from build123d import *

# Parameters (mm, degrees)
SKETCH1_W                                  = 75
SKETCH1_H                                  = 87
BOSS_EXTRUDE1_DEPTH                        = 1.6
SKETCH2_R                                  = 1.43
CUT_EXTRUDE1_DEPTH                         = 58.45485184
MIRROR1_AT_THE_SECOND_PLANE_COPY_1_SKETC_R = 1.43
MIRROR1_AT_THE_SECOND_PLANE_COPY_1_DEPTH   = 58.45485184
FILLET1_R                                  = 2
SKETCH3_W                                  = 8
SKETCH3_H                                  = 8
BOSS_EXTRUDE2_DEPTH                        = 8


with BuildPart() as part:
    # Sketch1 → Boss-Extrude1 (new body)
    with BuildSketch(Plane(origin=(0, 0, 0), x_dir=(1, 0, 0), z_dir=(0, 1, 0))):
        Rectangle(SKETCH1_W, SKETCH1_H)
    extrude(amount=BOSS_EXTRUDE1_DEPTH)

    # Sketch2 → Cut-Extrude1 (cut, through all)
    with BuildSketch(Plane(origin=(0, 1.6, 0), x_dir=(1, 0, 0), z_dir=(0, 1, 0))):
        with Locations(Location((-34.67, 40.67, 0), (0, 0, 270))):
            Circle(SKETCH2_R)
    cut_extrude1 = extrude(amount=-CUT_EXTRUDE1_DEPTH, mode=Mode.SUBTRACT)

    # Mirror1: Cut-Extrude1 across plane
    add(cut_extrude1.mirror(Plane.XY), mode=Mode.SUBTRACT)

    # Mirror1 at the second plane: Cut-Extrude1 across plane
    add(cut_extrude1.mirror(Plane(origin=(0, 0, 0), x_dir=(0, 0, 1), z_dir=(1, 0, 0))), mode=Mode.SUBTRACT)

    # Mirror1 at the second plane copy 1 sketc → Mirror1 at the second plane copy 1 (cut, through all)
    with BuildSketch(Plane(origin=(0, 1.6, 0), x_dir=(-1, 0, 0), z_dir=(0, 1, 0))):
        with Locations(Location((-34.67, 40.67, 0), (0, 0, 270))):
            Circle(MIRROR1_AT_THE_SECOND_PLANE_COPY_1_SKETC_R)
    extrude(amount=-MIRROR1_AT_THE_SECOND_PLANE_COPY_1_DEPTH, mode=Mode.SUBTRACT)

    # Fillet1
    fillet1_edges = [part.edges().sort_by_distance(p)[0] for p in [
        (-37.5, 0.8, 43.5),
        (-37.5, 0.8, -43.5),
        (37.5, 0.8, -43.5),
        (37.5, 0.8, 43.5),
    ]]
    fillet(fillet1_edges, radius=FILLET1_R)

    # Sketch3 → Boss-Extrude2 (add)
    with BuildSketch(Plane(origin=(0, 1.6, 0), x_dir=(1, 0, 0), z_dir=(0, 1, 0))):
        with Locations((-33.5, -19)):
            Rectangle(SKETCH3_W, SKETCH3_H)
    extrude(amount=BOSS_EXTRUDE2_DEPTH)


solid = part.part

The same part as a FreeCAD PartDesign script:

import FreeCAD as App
import Part
import Sketcher

V = App.Vector


def edges_at(feature, points):
    """Names of the edges that pass closest to the given points."""
    edges = feature.Shape.Edges
    near = lambda p: min(range(len(edges)), key=lambda i: edges[i].distToShape(Part.Vertex(*p))[0])
    return sorted({f"Edge{near(p) + 1}" for p in points})

doc = App.newDocument("Part")
params = doc.addObject("Spreadsheet::Sheet", "Params")
for row, (alias, value) in enumerate([
    ("sketch1_width", "75 mm"),
    ("sketch1_height", "87 mm"),
    ("pad1_length", "1.6 mm"),
    ("sketch2_diameter", "2.86 mm"),
    ("sketch3_diameter", "2.86 mm"),
    ("fillet_radius", "2 mm"),
    ("sketch4_width", "8 mm"),
    ("pad2_length", "8 mm"),
], start=1):
    params.set(f"A{row}", alias)
    params.set(f"B{row}", "=" + value)
    params.setAlias(f"B{row}", alias)

body = doc.addObject("PartDesign::Body", "Body")

# Sketch on XZ plane
sketch1 = doc.addObject("Sketcher::SketchObject", "Sketch")
body.addObject(sketch1)
sketch1.AttachmentSupport = (doc.XZ_Plane, [""])
sketch1.MapMode = "FlatFace"
sketch1.addGeometry([
    Part.LineSegment(V(-37.5, -43.5, 0), V(-37.5, 43.5, 0)),
    Part.LineSegment(V(-37.5, 43.5, 0), V(37.5, 43.5, 0)),
    Part.LineSegment(V(37.5, 43.5, 0), V(37.5, -43.5, 0)),
    Part.LineSegment(V(37.5, -43.5, 0), V(-37.5, -43.5, 0)),
], False)
sketch1.addConstraint([
    Sketcher.Constraint("Coincident", 0, 2, 1, 1),
    Sketcher.Constraint("Coincident", 1, 2, 2, 1),
    Sketcher.Constraint("Coincident", 2, 2, 3, 1),
    Sketcher.Constraint("Coincident", 3, 2, 0, 1),
    Sketcher.Constraint("Vertical", 0),
    Sketcher.Constraint("Horizontal", 1),
    Sketcher.Constraint("Vertical", 2),
    Sketcher.Constraint("Horizontal", 3),
    Sketcher.Constraint("Symmetric", 0, 2, 2, 2, -1, 1),
    Sketcher.Constraint("DistanceX", 1, 1, 1, 2, 75.0),
    Sketcher.Constraint("DistanceY", 0, 1, 0, 2, 87.0),
])
sketch1.setExpression("Constraints[9]", "Params.sketch1_width")
sketch1.setExpression("Constraints[10]", "Params.sketch1_height")
pad1 = doc.addObject("PartDesign::Pad", "Pad")
body.addObject(pad1)
pad1.Profile = sketch1
pad1.setExpression("Length", "Params.pad1_length")
pad1.Reversed = True

# Sketch on XZ plane
sketch2 = doc.addObject("Sketcher::SketchObject", "Sketch001")
body.addObject(sketch2)
sketch2.AttachmentSupport = (doc.XZ_Plane, [""])
sketch2.MapMode = "FlatFace"
sketch2.AttachmentOffset = App.Placement(V(0, 0, -1.6), App.Rotation())
sketch2.addGeometry(Part.Circle(V(-34.67, -40.67, 0), V(0, 0, 1), 1.43), False)
sketch2.addConstraint([
    Sketcher.Constraint("Diameter", 0, 2.86),
    Sketcher.Constraint("DistanceX", 0, 3, -1, 1, 34.67),
    Sketcher.Constraint("DistanceY", 0, 3, -1, 1, 40.67),
])
sketch2.setExpression("Constraints[0]", "Params.sketch2_diameter")
pocket1 = doc.addObject("PartDesign::Pocket", "Pocket")
body.addObject(pocket1)
pocket1.Profile = sketch2
pocket1.Type = "ThroughAll"
pocket1.Reversed = True
doc.recompute()

mirrored = doc.addObject("PartDesign::Mirrored", "Mirrored")
body.addObject(mirrored)
mirrored.Originals = [pocket1]
mirrored.MirrorPlane = (doc.XY_Plane, [""])
body.Tip = mirrored
doc.recompute()

mirrored2 = doc.addObject("PartDesign::Mirrored", "Mirrored001")
body.addObject(mirrored2)
mirrored2.Originals = [pocket1]
mirrored2.MirrorPlane = (doc.YZ_Plane, [""])
body.Tip = mirrored2

# Sketch on XZ plane
sketch3 = doc.addObject("Sketcher::SketchObject", "Sketch002")
body.addObject(sketch3)
sketch3.AttachmentSupport = (doc.XZ_Plane, [""])
sketch3.MapMode = "FlatFace"
sketch3.AttachmentOffset = App.Placement(V(0, 0, -1.6), App.Rotation())
sketch3.addGeometry(Part.Circle(V(34.67, 40.67, 0), V(0, 0, 1), 1.43), False)
sketch3.addConstraint([
    Sketcher.Constraint("Diameter", 0, 2.86),
    Sketcher.Constraint("DistanceX", -1, 1, 0, 3, 34.67),
    Sketcher.Constraint("DistanceY", -1, 1, 0, 3, 40.67),
])
sketch3.setExpression("Constraints[0]", "Params.sketch3_diameter")
pocket2 = doc.addObject("PartDesign::Pocket", "Pocket001")
body.addObject(pocket2)
pocket2.Profile = sketch3
pocket2.Type = "ThroughAll"
pocket2.Reversed = True
doc.recompute()

fillet = doc.addObject("PartDesign::Fillet", "Fillet")
body.addObject(fillet)
fillet.Base = (pocket2, edges_at(pocket2, [
    (-37.5, 0.8, 43.5),
    (-37.5, 0.8, -43.5),
    (37.5, 0.8, -43.5),
    (37.5, 0.8, 43.5),
]))
fillet.setExpression("Radius", "Params.fillet_radius")

# Sketch on XZ plane
sketch4 = doc.addObject("Sketcher::SketchObject", "Sketch003")
body.addObject(sketch4)
sketch4.AttachmentSupport = (doc.XZ_Plane, [""])
sketch4.MapMode = "FlatFace"
sketch4.AttachmentOffset = App.Placement(V(0, 0, -1.6), App.Rotation())
sketch4.addGeometry([
    Part.LineSegment(V(-37.5, 15, 0), V(-37.5, 23, 0)),
    Part.LineSegment(V(-37.5, 23, 0), V(-29.5, 23, 0)),
    Part.LineSegment(V(-29.5, 23, 0), V(-29.5, 15, 0)),
    Part.LineSegment(V(-29.5, 15, 0), V(-37.5, 15, 0)),
], False)
sketch4.addConstraint([
    Sketcher.Constraint("Coincident", 0, 2, 1, 1),
    Sketcher.Constraint("Coincident", 1, 2, 2, 1),
    Sketcher.Constraint("Coincident", 2, 2, 3, 1),
    Sketcher.Constraint("Coincident", 3, 2, 0, 1),
    Sketcher.Constraint("Vertical", 0),
    Sketcher.Constraint("Horizontal", 1),
    Sketcher.Constraint("Vertical", 2),
    Sketcher.Constraint("Horizontal", 3),
    Sketcher.Constraint("Equal", 3, 0),
    Sketcher.Constraint("DistanceX", 1, 1, 1, 2, 8.0),
    Sketcher.Constraint("DistanceY", -1, 1, 0, 2, 23.0),
    Sketcher.Constraint("DistanceX", 0, 2, -1, 1, 37.5),
])
sketch4.setExpression("Constraints[9]", "Params.sketch4_width")
pad2 = doc.addObject("PartDesign::Pad", "Pad001")
body.addObject(pad2)
pad2.Profile = sketch4
pad2.setExpression("Length", "Params.pad2_length")
pad2.Reversed = True

doc.recompute()
